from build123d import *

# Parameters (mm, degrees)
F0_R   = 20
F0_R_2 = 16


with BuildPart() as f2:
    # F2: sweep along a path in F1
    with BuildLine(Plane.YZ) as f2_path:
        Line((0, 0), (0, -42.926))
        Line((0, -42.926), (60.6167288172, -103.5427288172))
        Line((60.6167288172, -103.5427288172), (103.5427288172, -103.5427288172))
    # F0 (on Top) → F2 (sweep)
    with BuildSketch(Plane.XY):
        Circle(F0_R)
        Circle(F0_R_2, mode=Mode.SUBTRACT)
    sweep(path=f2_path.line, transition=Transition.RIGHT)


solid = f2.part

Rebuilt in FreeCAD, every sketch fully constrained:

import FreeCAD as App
import Part
import Sketcher
from FreeCAD import Vector
Q = App.Units.Quantity

doc = App.newDocument("Part")
body = doc.addObject("PartDesign::Body", "Body")

# Sketch on XY plane
sketch1 = doc.addObject("Sketcher::SketchObject", "Sketch")
body.addObject(sketch1)
sketch1.AttachmentSupport = (doc.XY_Plane, [""])
sketch1.MapMode = "FlatFace"
sketch1.addGeometry([
    Part.Circle(Vector(0, 0, 0), Vector(0, 0, 1), 20),
    Part.Circle(Vector(0, 0, 0), Vector(0, 0, 1), 16),
], False)
sketch1.addConstraint([
    Sketcher.Constraint("Coincident", 0, 3, -1, 1),
    Sketcher.Constraint("Coincident", 1, 3, -1, 1),
    Sketcher.Constraint("Diameter", 0, Q("40 mm")),
    Sketcher.Constraint("Diameter", 1, Q("32 mm")),
])

# Sketch on YZ plane
sketch2 = doc.addObject("Sketcher::SketchObject", "Sketch001")
body.addObject(sketch2)
sketch2.AttachmentSupport = (doc.YZ_Plane, [""])
sketch2.MapMode = "FlatFace"
sketch2.addGeometry([
    Part.LineSegment(Vector(0, 0, 0), Vector(0, -42.926, 0)),
    Part.LineSegment(Vector(0, -42.926, 0), Vector(60.616729, -103.542729, 0)),
    Part.LineSegment(Vector(60.616729, -103.542729, 0), Vector(103.542729, -103.542729, 0)),
], False)
sketch2.addConstraint([
    Sketcher.Constraint("Coincident", 0, 2, 1, 1),
    Sketcher.Constraint("Coincident", 1, 2, 2, 1),
    Sketcher.Constraint("Vertical", 0),
    Sketcher.Constraint("Horizontal", 2),
    Sketcher.Constraint("Coincident", 0, 1, -1, 1),
    Sketcher.Constraint("Equal", 2, 0),
    Sketcher.Constraint("Angle", 1, Q("-45 deg")),
    Sketcher.Constraint("DistanceX", 2, 1, 2, 2, Q("42.926 mm")),
    Sketcher.Constraint("Distance", 1, Q("85.725 mm")),
])
doc.recompute()

additivepipe = doc.addObject("PartDesign::AdditivePipe", "AdditivePipe")
body.addObject(additivepipe)
additivepipe.Profile = sketch1
additivepipe.Spine = (sketch2, ["Edge1", "Edge2", "Edge3"])
additivepipe.Transition = "Right corner"

doc.recompute()
